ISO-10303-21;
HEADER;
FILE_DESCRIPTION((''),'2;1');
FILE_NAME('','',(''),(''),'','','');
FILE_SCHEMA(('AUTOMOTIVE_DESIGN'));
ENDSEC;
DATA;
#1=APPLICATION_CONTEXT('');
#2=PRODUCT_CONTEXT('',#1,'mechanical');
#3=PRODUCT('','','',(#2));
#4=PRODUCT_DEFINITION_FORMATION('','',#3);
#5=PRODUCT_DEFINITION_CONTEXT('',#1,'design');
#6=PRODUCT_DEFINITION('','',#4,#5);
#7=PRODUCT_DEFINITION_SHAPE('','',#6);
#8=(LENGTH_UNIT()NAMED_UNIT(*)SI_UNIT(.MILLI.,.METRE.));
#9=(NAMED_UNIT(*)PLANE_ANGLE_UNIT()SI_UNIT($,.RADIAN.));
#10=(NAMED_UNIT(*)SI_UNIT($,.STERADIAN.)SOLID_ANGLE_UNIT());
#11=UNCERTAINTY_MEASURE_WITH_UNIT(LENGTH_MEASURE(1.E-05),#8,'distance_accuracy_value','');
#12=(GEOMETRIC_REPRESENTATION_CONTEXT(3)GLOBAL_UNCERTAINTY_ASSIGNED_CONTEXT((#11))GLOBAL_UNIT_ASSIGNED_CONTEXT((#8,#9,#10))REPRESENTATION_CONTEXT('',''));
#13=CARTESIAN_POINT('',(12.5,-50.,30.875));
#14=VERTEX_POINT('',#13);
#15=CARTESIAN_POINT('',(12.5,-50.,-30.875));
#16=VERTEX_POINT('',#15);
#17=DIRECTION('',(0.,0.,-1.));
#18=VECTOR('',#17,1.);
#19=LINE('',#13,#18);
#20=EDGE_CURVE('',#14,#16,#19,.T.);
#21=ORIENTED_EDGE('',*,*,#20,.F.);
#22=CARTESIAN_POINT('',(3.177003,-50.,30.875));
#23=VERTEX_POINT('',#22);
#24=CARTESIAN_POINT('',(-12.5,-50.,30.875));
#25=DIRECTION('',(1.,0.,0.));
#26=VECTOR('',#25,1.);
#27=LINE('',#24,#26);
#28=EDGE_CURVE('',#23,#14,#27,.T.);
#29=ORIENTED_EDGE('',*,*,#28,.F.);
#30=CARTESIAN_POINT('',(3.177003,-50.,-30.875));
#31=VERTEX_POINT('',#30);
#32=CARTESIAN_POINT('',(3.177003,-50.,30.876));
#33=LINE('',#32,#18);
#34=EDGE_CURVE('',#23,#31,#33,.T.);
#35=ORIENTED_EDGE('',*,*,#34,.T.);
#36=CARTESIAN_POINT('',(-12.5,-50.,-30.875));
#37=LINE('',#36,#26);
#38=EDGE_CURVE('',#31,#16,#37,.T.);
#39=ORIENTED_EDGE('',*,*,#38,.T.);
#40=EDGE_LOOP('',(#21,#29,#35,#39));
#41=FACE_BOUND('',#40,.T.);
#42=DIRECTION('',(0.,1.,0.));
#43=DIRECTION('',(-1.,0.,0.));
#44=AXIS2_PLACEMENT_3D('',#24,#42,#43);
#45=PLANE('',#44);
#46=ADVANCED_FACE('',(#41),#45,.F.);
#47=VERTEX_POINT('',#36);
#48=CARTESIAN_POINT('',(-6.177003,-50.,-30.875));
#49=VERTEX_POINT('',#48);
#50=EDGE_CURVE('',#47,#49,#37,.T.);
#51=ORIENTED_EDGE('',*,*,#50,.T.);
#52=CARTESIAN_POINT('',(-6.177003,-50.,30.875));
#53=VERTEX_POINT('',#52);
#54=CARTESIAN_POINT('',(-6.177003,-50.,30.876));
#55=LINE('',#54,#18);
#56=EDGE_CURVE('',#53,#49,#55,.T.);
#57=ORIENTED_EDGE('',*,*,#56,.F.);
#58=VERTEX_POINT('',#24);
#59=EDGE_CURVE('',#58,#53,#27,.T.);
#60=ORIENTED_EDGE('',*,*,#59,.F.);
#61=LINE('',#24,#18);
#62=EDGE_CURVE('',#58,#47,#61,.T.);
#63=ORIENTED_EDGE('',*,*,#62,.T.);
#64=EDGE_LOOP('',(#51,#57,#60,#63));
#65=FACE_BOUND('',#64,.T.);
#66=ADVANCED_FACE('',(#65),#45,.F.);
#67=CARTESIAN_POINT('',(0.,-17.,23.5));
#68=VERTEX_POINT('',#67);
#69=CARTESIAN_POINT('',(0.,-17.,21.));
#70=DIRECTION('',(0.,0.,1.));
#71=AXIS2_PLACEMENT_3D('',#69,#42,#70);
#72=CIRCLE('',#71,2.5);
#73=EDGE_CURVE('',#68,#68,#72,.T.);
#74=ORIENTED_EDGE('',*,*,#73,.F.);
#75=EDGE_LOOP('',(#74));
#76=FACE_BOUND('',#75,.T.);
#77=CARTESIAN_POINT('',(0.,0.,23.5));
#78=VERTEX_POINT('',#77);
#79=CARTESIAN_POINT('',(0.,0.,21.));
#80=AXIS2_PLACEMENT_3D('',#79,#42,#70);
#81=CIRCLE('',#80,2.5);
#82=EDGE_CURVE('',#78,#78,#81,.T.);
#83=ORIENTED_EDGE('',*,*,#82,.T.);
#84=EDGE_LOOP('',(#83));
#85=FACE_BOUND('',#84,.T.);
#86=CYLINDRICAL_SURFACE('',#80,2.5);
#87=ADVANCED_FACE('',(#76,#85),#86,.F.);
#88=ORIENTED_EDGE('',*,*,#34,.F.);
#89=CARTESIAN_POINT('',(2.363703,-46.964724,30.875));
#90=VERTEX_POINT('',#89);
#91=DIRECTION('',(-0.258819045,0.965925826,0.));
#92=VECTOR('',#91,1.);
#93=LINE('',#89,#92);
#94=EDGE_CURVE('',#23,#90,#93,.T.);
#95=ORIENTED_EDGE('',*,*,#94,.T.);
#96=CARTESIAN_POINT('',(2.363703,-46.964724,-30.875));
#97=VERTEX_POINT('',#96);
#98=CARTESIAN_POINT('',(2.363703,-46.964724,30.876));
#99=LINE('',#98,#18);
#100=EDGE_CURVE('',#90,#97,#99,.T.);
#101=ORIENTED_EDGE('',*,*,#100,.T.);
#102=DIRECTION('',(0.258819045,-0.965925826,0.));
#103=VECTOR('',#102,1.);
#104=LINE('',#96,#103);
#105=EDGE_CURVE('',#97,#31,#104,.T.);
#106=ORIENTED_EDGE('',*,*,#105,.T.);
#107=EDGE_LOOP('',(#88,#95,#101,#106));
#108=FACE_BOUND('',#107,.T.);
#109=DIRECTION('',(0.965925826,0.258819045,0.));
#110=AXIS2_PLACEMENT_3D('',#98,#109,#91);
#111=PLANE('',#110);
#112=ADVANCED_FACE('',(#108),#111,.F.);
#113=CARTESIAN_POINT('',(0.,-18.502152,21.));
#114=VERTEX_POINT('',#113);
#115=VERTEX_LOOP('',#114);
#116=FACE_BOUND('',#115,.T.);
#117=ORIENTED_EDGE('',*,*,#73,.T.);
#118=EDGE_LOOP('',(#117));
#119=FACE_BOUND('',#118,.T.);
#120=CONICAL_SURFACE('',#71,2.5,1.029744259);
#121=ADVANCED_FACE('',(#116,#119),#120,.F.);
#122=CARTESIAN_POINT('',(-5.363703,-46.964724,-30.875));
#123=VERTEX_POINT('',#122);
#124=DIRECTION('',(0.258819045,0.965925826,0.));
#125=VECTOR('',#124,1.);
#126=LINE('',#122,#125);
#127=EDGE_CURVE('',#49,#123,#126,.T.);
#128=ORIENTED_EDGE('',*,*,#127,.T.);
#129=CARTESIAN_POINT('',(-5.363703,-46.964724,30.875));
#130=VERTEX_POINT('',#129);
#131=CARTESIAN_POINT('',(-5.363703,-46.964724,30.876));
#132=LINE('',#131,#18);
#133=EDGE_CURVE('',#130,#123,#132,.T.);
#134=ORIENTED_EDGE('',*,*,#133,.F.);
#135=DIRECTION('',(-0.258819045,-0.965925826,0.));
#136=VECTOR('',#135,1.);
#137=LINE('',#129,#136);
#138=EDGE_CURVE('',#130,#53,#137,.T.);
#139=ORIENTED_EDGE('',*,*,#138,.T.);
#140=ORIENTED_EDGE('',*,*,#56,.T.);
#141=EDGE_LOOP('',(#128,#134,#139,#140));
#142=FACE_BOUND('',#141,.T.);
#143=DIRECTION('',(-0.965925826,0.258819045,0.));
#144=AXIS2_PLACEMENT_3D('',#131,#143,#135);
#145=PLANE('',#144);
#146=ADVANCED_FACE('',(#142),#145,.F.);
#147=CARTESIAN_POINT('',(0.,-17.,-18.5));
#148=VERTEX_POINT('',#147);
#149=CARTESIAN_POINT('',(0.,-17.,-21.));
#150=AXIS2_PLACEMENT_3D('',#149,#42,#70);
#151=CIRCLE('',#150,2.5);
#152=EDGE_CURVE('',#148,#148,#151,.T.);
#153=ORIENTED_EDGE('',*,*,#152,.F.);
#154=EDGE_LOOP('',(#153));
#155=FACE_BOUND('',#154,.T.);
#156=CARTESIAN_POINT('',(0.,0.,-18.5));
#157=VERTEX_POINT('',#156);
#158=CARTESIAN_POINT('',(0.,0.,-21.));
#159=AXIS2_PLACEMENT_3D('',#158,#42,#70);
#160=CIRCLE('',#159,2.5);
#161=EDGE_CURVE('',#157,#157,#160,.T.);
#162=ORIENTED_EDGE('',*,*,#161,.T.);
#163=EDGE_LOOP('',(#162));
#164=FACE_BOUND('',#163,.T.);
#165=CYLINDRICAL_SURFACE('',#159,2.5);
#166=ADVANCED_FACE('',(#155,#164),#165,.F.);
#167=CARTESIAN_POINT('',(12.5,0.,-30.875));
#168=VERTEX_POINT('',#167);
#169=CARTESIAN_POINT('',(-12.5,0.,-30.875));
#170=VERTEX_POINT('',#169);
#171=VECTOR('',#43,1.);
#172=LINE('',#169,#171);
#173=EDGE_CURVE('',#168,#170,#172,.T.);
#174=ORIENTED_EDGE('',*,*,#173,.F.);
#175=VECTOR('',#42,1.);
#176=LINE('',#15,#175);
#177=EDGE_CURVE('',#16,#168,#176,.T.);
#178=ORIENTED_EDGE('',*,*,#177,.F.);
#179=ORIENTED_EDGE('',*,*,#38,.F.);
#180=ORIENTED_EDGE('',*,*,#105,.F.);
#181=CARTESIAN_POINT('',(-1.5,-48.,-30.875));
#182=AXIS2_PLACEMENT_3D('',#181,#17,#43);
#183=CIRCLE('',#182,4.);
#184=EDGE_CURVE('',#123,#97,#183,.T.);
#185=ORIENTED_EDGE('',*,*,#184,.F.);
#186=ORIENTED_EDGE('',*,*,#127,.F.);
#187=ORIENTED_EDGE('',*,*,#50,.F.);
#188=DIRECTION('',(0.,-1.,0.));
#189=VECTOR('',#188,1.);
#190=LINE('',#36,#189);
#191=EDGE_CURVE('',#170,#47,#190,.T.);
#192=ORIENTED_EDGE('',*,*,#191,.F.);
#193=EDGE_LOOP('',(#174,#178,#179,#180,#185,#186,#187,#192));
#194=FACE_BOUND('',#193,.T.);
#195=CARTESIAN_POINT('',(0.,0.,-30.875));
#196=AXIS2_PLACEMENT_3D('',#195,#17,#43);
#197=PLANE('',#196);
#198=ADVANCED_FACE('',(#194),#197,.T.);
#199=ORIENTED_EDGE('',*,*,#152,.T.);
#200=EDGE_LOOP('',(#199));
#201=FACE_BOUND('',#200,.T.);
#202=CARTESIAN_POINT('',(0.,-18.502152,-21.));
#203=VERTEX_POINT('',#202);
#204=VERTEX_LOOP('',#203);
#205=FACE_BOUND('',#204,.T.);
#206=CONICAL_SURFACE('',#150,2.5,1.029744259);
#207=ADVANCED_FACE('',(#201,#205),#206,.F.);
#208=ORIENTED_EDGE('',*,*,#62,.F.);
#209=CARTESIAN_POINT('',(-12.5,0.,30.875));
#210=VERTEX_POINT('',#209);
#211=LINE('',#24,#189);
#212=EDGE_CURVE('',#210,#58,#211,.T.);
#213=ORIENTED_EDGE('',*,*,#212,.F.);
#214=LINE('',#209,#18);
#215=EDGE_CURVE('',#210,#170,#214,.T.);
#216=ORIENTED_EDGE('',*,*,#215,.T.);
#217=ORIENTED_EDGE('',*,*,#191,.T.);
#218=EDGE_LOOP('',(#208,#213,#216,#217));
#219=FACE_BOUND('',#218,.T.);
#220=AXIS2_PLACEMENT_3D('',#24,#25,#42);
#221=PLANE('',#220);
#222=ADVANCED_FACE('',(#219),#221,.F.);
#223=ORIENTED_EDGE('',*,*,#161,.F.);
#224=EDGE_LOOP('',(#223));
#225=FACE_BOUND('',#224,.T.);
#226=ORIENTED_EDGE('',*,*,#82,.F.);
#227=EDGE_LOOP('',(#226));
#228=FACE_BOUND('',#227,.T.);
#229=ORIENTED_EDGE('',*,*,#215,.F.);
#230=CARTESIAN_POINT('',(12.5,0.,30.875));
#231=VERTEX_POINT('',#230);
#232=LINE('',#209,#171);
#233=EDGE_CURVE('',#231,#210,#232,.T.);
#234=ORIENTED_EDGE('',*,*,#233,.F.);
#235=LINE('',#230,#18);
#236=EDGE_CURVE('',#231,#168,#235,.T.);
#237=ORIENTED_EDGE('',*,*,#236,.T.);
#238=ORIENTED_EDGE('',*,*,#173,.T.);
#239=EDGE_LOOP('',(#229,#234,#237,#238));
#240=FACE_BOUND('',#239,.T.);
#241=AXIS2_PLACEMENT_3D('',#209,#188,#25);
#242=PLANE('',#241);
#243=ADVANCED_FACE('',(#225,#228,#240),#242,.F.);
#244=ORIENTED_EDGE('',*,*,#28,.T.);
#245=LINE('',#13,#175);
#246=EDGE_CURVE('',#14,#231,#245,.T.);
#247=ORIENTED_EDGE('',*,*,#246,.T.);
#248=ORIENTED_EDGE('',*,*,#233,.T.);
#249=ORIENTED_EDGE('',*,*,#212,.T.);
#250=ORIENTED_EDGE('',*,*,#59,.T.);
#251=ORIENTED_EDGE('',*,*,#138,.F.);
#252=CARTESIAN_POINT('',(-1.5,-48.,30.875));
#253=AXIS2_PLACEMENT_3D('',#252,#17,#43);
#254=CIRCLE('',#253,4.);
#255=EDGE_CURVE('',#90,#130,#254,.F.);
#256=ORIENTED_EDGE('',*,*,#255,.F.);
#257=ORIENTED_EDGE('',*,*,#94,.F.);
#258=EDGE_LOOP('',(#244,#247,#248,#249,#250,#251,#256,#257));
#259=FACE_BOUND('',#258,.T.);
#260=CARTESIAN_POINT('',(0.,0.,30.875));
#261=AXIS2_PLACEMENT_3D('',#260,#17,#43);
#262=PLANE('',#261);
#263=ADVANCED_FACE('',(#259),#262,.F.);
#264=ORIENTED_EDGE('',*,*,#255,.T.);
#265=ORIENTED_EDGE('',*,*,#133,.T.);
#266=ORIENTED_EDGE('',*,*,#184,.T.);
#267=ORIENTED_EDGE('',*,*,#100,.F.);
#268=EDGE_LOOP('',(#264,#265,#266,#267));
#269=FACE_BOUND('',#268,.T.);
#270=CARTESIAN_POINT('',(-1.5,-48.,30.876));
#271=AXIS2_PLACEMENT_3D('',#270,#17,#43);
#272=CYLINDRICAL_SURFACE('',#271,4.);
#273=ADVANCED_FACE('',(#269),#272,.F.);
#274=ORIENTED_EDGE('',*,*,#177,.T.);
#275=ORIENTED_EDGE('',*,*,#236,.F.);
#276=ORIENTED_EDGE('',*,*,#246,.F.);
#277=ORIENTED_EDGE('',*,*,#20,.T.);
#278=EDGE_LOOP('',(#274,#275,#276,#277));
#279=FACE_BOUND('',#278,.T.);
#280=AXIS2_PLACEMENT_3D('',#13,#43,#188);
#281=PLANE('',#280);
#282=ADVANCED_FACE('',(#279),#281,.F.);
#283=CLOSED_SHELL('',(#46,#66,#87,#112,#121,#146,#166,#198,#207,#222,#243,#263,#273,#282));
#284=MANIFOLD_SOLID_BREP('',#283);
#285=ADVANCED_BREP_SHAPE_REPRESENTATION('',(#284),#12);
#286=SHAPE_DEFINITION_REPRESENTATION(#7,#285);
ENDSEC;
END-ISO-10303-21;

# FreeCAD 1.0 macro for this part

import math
import FreeCAD as App
import Part
import Sketcher

V = App.Vector
Q = App.Units.Quantity

doc = App.newDocument("Part")
body = doc.addObject("PartDesign::Body", "Body")

sketch1 = body.newObject("Sketcher::SketchObject", "Sketch")
sketch1.AttachmentSupport = (doc.getObject("XY_Plane"), [""])
sketch1.MapMode = "FlatFace"
sketch1.addGeometry([
    Part.LineSegment(V(-12, 0, 0), V(-12, -50, 0)),
    Part.LineSegment(V(-12, -50, 0), V(12, -50, 0)),
    Part.LineSegment(V(12, -50, 0), V(12, 0, 0)),
    Part.LineSegment(V(12, 0, 0), V(-12, 0, 0)),
], False)
sketch1.addConstraint([
    Sketcher.Constraint("Coincident", 0, 2, 1, 1),
    Sketcher.Constraint("Coincident", 1, 2, 2, 1),
    Sketcher.Constraint("Coincident", 2, 2, 3, 1),
    Sketcher.Constraint("Coincident", 3, 2, 0, 1),
    Sketcher.Constraint("Vertical", 0),
    Sketcher.Constraint("Horizontal", 1),
    Sketcher.Constraint("Vertical", 2),
    Sketcher.Constraint("Horizontal", 3),
    Sketcher.Constraint("Symmetric", 2, 2, 3, 2, -1, 1),
    Sketcher.Constraint("DistanceX", 1, 1, 1, 2, Q("25 mm")),
    Sketcher.Constraint("DistanceY", 0, 2, 0, 1, Q("50 mm")),
])
pad1 = body.newObject("PartDesign::Pad", "Pad")
pad1.Profile = sketch1
pad1.Length = 61.75
pad1.Midplane = True

sketch2 = body.newObject("Sketcher::SketchObject", "Sketch001")
sketch2.AttachmentSupport = (doc.getObject("XY_Plane"), [""])
sketch2.MapMode = "FlatFace"
sketch2.AttachmentOffset = App.Placement(V(0, 0, -30.875), App.Rotation())
sketch2.addGeometry([
    Part.LineSegment(V(2.4, -47, 0), V(3.2, -50, 0)),
    Part.LineSegment(V(3.2, -50, 0), V(-6.2, -50, 0)),
    Part.LineSegment(V(-6.2, -50, 0), V(-5.4, -47, 0)),
    Part.ArcOfCircle(Part.Circle(V(-1.5, -48, 0), V(0, 0, 1), 4), math.radians(15), math.radians(165)),
], False)
sketch2.addConstraint([
    Sketcher.Constraint("Coincident", 0, 2, 1, 1),
    Sketcher.Constraint("Coincident", 1, 2, 2, 1),
    Sketcher.Constraint("Tangent", 2, 2, 3, 2),
    Sketcher.Constraint("Tangent", 3, 1, 0, 1),
    Sketcher.Constraint("Horizontal", 1),
    Sketcher.Constraint("Horizontal", 2, 2, 3, 1),
    Sketcher.Constraint("Radius", 3, Q("4 mm")),
    Sketcher.Constraint("Angle", 0, Q("-75 deg")),
    Sketcher.Constraint("DistanceY", 3, 3, -1, 1, Q("48 mm")),
    Sketcher.Constraint("DistanceY", 0, 2, -1, 1, Q("50 mm")),
    Sketcher.Constraint("DistanceX", 3, 3, -1, 1, Q("1.5 mm")),
])
pocket1 = body.newObject("PartDesign::Pocket", "Pocket")
pocket1.Profile = sketch2
pocket1.Type = "UpToFirst"
pocket1.Reversed = True

sketch3 = body.newObject("Sketcher::SketchObject", "Sketch002")
sketch3.AttachmentSupport = (doc.getObject("XZ_Plane"), [""])
sketch3.MapMode = "FlatFace"
sketch3.addGeometry([
    Part.Circle(V(0, -21, 0), V(0, 0, 1), 2.5),
    Part.Circle(V(0, 21, 0), V(0, 0, 1), 2.5),
], False)
sketch3.addConstraint([
    Sketcher.Constraint("Equal", 0, 1),
    Sketcher.Constraint("Symmetric", 0, 3, 1, 3, -1, 1),
    Sketcher.Constraint("PointOnObject", 0, 3, -2),
    Sketcher.Constraint("Diameter", 0, Q("5 mm")),
    Sketcher.Constraint("DistanceY", 0, 3, -1, 1, Q("21 mm")),
])
doc.recompute()
hole = body.newObject("PartDesign::Hole", "Hole")
hole.Profile = sketch3
hole.ThreadType = "None"
hole.Diameter = 5
hole.DepthType = "Dimension"
hole.Depth = 17
hole.DrillPoint = "Angled"
hole.DrillPointAngle = 118
hole.Reversed = True

doc.recompute()
